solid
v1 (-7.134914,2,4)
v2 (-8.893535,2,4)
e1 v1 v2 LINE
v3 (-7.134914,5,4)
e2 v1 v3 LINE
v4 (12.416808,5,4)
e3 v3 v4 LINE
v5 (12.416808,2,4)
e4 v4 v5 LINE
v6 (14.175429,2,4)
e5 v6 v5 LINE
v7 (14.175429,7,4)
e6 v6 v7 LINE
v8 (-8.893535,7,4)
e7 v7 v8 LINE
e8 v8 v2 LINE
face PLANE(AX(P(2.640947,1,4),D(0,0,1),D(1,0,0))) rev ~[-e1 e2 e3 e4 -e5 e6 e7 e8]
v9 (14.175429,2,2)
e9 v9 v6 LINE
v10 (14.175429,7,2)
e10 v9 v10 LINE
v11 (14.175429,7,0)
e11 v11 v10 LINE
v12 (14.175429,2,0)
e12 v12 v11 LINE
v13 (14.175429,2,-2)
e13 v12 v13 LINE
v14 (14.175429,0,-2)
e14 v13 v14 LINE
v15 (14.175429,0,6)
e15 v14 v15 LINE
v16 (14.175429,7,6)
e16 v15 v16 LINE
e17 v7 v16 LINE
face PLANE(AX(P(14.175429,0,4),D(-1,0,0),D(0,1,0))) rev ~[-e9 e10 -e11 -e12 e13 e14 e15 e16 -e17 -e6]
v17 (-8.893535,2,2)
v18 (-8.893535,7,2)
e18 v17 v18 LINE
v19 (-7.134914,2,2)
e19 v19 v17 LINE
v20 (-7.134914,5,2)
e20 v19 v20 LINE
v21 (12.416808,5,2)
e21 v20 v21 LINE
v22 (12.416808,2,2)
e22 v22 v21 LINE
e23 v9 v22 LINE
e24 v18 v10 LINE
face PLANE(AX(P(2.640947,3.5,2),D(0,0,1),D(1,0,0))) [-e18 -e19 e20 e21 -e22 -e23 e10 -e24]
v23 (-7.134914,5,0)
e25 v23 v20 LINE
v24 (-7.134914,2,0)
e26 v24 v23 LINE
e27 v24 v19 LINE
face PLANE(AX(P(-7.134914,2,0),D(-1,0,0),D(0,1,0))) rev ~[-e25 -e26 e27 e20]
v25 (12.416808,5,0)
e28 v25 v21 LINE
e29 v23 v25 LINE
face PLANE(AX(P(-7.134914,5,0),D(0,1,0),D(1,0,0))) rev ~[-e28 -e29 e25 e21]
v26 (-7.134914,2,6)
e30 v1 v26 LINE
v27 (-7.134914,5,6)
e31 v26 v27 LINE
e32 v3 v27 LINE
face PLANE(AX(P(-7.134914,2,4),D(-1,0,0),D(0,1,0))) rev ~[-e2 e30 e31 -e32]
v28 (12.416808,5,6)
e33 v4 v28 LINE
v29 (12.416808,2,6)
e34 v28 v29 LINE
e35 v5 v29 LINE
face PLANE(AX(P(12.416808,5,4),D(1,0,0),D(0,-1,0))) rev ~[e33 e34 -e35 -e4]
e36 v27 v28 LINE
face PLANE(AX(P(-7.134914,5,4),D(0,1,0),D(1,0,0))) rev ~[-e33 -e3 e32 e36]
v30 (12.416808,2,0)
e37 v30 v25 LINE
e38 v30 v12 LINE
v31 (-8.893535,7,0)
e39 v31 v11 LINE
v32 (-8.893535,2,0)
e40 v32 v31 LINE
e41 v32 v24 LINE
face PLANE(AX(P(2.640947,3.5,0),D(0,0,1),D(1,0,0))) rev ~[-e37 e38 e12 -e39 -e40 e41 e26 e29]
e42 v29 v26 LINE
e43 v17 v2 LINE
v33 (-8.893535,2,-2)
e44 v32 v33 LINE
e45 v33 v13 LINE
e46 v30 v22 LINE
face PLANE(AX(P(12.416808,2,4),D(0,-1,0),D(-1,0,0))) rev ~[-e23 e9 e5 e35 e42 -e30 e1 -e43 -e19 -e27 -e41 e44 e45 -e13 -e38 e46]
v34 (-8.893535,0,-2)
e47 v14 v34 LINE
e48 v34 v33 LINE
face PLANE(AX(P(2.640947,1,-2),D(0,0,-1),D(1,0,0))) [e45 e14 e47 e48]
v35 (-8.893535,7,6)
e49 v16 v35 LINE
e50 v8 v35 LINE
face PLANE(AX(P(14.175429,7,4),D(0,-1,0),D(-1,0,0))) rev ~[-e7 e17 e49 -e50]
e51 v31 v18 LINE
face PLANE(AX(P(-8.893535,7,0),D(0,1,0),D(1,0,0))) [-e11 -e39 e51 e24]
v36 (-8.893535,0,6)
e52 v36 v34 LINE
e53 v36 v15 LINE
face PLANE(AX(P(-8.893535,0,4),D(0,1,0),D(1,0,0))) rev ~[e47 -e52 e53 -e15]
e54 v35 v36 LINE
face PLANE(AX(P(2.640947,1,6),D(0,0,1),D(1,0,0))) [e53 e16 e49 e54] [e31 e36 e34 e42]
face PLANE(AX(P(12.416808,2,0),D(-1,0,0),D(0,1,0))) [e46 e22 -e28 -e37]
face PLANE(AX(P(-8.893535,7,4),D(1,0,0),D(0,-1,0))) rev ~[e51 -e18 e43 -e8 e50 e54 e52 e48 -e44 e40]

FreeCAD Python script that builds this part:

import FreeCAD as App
import Part
import Sketcher
Q = App.Units.Quantity

doc = App.newDocument("Part")
params = doc.addObject("Spreadsheet::Sheet", "Params")
for row, (alias, value) in enumerate([
    ("sketch1_height", "7 mm"),
    ("sketch1_height2", "3 mm"),
    ("pad1_length", "2 mm"),
    ("sketch2_height", "2 mm"),
    ("pad2_length", "2 mm"),
    ("sketch3_height", "2 mm"),
    ("pad3_length", "2 mm"),
    ("sketch4_height", "7 mm"),
    ("sketch4_height2", "3 mm"),
    ("pad4_length", "2 mm"),
], start=1):
    params.set(f"A{row}", alias)
    params.set(f"B{row}", "=" + value)
    params.setAlias(f"B{row}", alias)

body = doc.addObject("PartDesign::Body", "Body")

sketch1 = doc.addObject("Sketcher::SketchObject", "Sketch")
body.addObject(sketch1)
sketch1.AttachmentSupport = (doc.XY_Plane, [""])
sketch1.MapMode = "FlatFace"
sketch1.addGeometry([
    Part.LineSegment(App.Vector(-8.893535, 7, 0), App.Vector(-8.893535, 0, 0)),
    Part.LineSegment(App.Vector(-8.893535, 0, 0), App.Vector(14.175429, 0, 0)),
    Part.LineSegment(App.Vector(14.175429, 0, 0), App.Vector(14.175429, 7, 0)),
    Part.LineSegment(App.Vector(14.175429, 7, 0), App.Vector(-8.893535, 7, 0)),
    Part.LineSegment(App.Vector(12.416808, 2, 0), App.Vector(-7.134914, 2, 0)),
    Part.LineSegment(App.Vector(-7.134914, 2, 0), App.Vector(-7.134914, 5, 0)),
    Part.LineSegment(App.Vector(-7.134914, 5, 0), App.Vector(12.416808, 5, 0)),
    Part.LineSegment(App.Vector(12.416808, 5, 0), App.Vector(12.416808, 2, 0)),
], False)
sketch1.addConstraint([
    Sketcher.Constraint("Coincident", 0, 2, 1, 1),
    Sketcher.Constraint("Coincident", 1, 2, 2, 1),
    Sketcher.Constraint("Coincident", 2, 2, 3, 1),
    Sketcher.Constraint("Coincident", 3, 2, 0, 1),
    Sketcher.Constraint("Coincident", 4, 2, 5, 1),
    Sketcher.Constraint("Coincident", 5, 2, 6, 1),
    Sketcher.Constraint("Coincident", 6, 2, 7, 1),
    Sketcher.Constraint("Coincident", 7, 2, 4, 1),
    Sketcher.Constraint("Vertical", 0),
    Sketcher.Constraint("Horizontal", 1),
    Sketcher.Constraint("Vertical", 2),
    Sketcher.Constraint("Horizontal", 3),
    Sketcher.Constraint("Horizontal", 4),
    Sketcher.Constraint("Vertical", 5),
    Sketcher.Constraint("Horizontal", 6),
    Sketcher.Constraint("Vertical", 7),
    Sketcher.Constraint("PointOnObject", 0, 2, -1),
    Sketcher.Constraint("DistanceY", 0, 2, 0, 1, Q("7 mm")),
    Sketcher.Constraint("DistanceY", 5, 1, 5, 2, Q("3 mm")),
    Sketcher.Constraint("DistanceY", -1, 1, 4, 2, Q("2 mm")),
    Sketcher.Constraint("DistanceX", 4, 2, 4, 1, Q("19.551722 mm")),
    Sketcher.Constraint("DistanceX", 1, 1, 1, 2, Q("23.068964 mm")),
    Sketcher.Constraint("DistanceX", -1, 1, 1, 2, Q("14.175429 mm")),
    Sketcher.Constraint("DistanceX", 0, 2, 4, 2, Q("1.758621 mm")),
])
sketch1.setExpression("Constraints[17]", "Params.sketch1_height")
sketch1.setExpression("Constraints[18]", "Params.sketch1_height2")
pad1 = doc.addObject("PartDesign::Pad", "Pad")
body.addObject(pad1)
pad1.Profile = sketch1
pad1.setExpression("Length", "Params.pad1_length")

sketch2 = doc.addObject("Sketcher::SketchObject", "Sketch001")
body.addObject(sketch2)
sketch2.AttachmentSupport = (doc.XY_Plane, [""])
sketch2.MapMode = "FlatFace"
sketch2.addGeometry([
    Part.LineSegment(App.Vector(14.175429, 2, 0), App.Vector(14.175429, 0, 0)),
    Part.LineSegment(App.Vector(14.175429, 0, 0), App.Vector(-8.893535, 0, 0)),
    Part.LineSegment(App.Vector(-8.893535, 0, 0), App.Vector(-8.893535, 2, 0)),
    Part.LineSegment(App.Vector(-8.893535, 2, 0), App.Vector(14.175429, 2, 0)),
], False)
sketch2.addConstraint([
    Sketcher.Constraint("Coincident", 0, 2, 1, 1),
    Sketcher.Constraint("Coincident", 1, 2, 2, 1),
    Sketcher.Constraint("Coincident", 2, 2, 3, 1),
    Sketcher.Constraint("Coincident", 3, 2, 0, 1),
    Sketcher.Constraint("Vertical", 0),
    Sketcher.Constraint("Horizontal", 1),
    Sketcher.Constraint("Vertical", 2),
    Sketcher.Constraint("Horizontal", 3),
    Sketcher.Constraint("PointOnObject", 0, 2, -1),
    Sketcher.Constraint("DistanceY", 0, 2, 0, 1, Q("2 mm")),
    Sketcher.Constraint("DistanceX", 1, 2, 1, 1, Q("23.068964 mm")),
    Sketcher.Constraint("DistanceX", -1, 1, 0, 2, Q("14.175429 mm")),
])
sketch2.setExpression("Constraints[9]", "Params.sketch2_height")
pad2 = doc.addObject("PartDesign::Pad", "Pad001")
body.addObject(pad2)
pad2.Profile = sketch2
pad2.setExpression("Length", "Params.pad2_length")
pad2.Reversed = True

sketch3 = doc.addObject("Sketcher::SketchObject", "Sketch002")
body.addObject(sketch3)
sketch3.AttachmentSupport = (doc.XY_Plane, [""])
sketch3.MapMode = "FlatFace"
sketch3.AttachmentOffset = App.Placement(App.Vector(0, 0, 2), App.Rotation())
sketch3.addGeometry([
    Part.LineSegment(App.Vector(-8.893535, 2, 0), App.Vector(-8.893535, 0, 0)),
    Part.LineSegment(App.Vector(-8.893535, 0, 0), App.Vector(14.175429, 0, 0)),
    Part.LineSegment(App.Vector(14.175429, 0, 0), App.Vector(14.175429, 2, 0)),
    Part.LineSegment(App.Vector(14.175429, 2, 0), App.Vector(-8.893535, 2, 0)),
], False)
sketch3.addConstraint([
    Sketcher.Constraint("Coincident", 0, 2, 1, 1),
    Sketcher.Constraint("Coincident", 1, 2, 2, 1),
    Sketcher.Constraint("Coincident", 2, 2, 3, 1),
    Sketcher.Constraint("Coincident", 3, 2, 0, 1),
    Sketcher.Constraint("Vertical", 0),
    Sketcher.Constraint("Horizontal", 1),
    Sketcher.Constraint("Vertical", 2),
    Sketcher.Constraint("Horizontal", 3),
    Sketcher.Constraint("PointOnObject", 0, 2, -1),
    Sketcher.Constraint("DistanceY", 0, 2, 0, 1, Q("2 mm")),
    Sketcher.Constraint("DistanceX", 1, 1, 1, 2, Q("23.068964 mm")),
    Sketcher.Constraint("DistanceX", -1, 1, 1, 2, Q("14.175429 mm")),
])
sketch3.setExpression("Constraints[9]", "Params.sketch3_height")
pad3 = doc.addObject("PartDesign::Pad", "Pad002")
body.addObject(pad3)
pad3.Profile = sketch3
pad3.setExpression("Length", "Params.pad3_length")

sketch4 = doc.addObject("Sketcher::SketchObject", "Sketch003")
body.addObject(sketch4)
sketch4.AttachmentSupport = (doc.XY_Plane, [""])
sketch4.MapMode = "FlatFace"
sketch4.AttachmentOffset = App.Placement(App.Vector(0, 0, 4), App.Rotation())
sketch4.addGeometry([
    Part.LineSegment(App.Vector(-8.893535, 0, 0), App.Vector(14.175429, 0, 0)),
    Part.LineSegment(App.Vector(14.175429, 0, 0), App.Vector(14.175429, 7, 0)),
    Part.LineSegment(App.Vector(14.175429, 7, 0), App.Vector(-8.893535, 7, 0)),
    Part.LineSegment(App.Vector(-8.893535, 7, 0), App.Vector(-8.893535, 0, 0)),
    Part.LineSegment(App.Vector(12.416808, 2, 0), App.Vector(-7.134914, 2, 0)),
    Part.LineSegment(App.Vector(-7.134914, 2, 0), App.Vector(-7.134914, 5, 0)),
    Part.LineSegment(App.Vector(-7.134914, 5, 0), App.Vector(12.416808, 5, 0)),
    Part.LineSegment(App.Vector(12.416808, 5, 0), App.Vector(12.416808, 2, 0)),
], False)
sketch4.addConstraint([
    Sketcher.Constraint("Coincident", 0, 2, 1, 1),
    Sketcher.Constraint("Coincident", 1, 2, 2, 1),
    Sketcher.Constraint("Coincident", 2, 2, 3, 1),
    Sketcher.Constraint("Coincident", 3, 2, 0, 1),
    Sketcher.Constraint("Coincident", 4, 2, 5, 1),
    Sketcher.Constraint("Coincident", 5, 2, 6, 1),
    Sketcher.Constraint("Coincident", 6, 2, 7, 1),
    Sketcher.Constraint("Coincident", 7, 2, 4, 1),
    Sketcher.Constraint("Horizontal", 0),
    Sketcher.Constraint("Vertical", 1),
    Sketcher.Constraint("Horizontal", 2),
    Sketcher.Constraint("Vertical", 3),
    Sketcher.Constraint("Horizontal", 4),
    Sketcher.Constraint("Vertical", 5),
    Sketcher.Constraint("Horizontal", 6),
    Sketcher.Constraint("Vertical", 7),
    Sketcher.Constraint("PointOnObject", 0, 2, -1),
    Sketcher.Constraint("DistanceY", 1, 1, 1, 2, Q("7 mm")),
    Sketcher.Constraint("DistanceY", 5, 1, 5, 2, Q("3 mm")),
    Sketcher.Constraint("DistanceY", -1, 1, 4, 2, Q("2 mm")),
    Sketcher.Constraint("DistanceX", 4, 2, 4, 1, Q("19.551722 mm")),
    Sketcher.Constraint("DistanceX", 0, 1, 0, 2, Q("23.068964 mm")),
    Sketcher.Constraint("DistanceX", -1, 1, 0, 2, Q("14.175429 mm")),
    Sketcher.Constraint("DistanceX", 3, 2, 4, 2, Q("1.758621 mm")),
])
sketch4.setExpression("Constraints[17]", "Params.sketch4_height")
sketch4.setExpression("Constraints[18]", "Params.sketch4_height2")
pad4 = doc.addObject("PartDesign::Pad", "Pad003")
body.addObject(pad4)
pad4.Profile = sketch4
pad4.setExpression("Length", "Params.pad4_length")

doc.recompute()
